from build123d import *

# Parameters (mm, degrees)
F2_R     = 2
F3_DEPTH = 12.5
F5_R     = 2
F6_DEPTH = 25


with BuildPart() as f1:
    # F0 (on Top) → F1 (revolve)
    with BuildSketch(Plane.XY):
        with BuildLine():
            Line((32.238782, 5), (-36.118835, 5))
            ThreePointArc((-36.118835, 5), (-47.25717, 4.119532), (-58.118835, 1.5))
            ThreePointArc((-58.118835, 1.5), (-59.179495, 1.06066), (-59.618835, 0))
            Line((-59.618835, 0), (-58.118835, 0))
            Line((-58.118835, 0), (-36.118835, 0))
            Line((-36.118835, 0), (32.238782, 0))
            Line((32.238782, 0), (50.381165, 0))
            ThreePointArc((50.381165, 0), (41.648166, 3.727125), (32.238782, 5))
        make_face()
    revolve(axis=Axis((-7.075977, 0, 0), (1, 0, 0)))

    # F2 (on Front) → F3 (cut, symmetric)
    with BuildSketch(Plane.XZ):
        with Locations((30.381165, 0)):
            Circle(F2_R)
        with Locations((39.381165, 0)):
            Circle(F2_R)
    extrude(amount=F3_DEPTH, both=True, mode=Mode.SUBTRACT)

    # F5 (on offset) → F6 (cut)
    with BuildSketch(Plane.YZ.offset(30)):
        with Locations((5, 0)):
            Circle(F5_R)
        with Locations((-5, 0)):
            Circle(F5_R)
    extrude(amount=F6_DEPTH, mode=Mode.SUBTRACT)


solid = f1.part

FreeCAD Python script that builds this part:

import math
import FreeCAD as App
import Part
import Sketcher

V = App.Vector
Q = App.Units.Quantity

doc = App.newDocument("Part")
body = doc.addObject("PartDesign::Body", "Body")

# Sketch on XY plane
sketch1 = body.newObject("Sketcher::SketchObject", "Sketch")
sketch1.AttachmentSupport = (doc.getObject("XY_Plane"), [""])
sketch1.MapMode = "FlatFace"
sketch1.addGeometry(Part.LineSegment(V(32.238782, 5, 0), V(-36.118835, 5, 0)), False)
sketch1.addGeometry(Part.ArcOfCircle(Part.Circle(V(-36.11883, -65.892887, 0), V(0, 0, 1), 70.892887), math.radians(90.000004), math.radians(108.078962)), False)
sketch1.addGeometry(Part.ArcOfCircle(Part.Circle(V(-58.118834, -0.000001, 0), V(0, 0, 1), 1.500001), math.radians(90.000022), math.radians(179.999978)), False)
sketch1.addGeometry(Part.LineSegment(V(-59.618835, 0, 0), V(50.381165, 0, 0)), False)
sketch1.addGeometry(Part.ArcOfCircle(Part.Circle(V(32.23878, -30.414612, 0), V(0, 0, 1), 35.414612), math.radians(59.183828), math.radians(89.999997)), False)
sketch1.addConstraint(Sketcher.Constraint("Tangent", 0, 2, 1, 1))
sketch1.addConstraint(Sketcher.Constraint("Coincident", 1, 2, 2, 1))
sketch1.addConstraint(Sketcher.Constraint("Coincident", 2, 2, 3, 1))
sketch1.addConstraint(Sketcher.Constraint("Coincident", 3, 2, 4, 1))
sketch1.addConstraint(Sketcher.Constraint("Tangent", 4, 2, 0, 1))
sketch1.addConstraint(Sketcher.Constraint("Horizontal", 0))
sketch1.addConstraint(Sketcher.Constraint("Horizontal", 3))
sketch1.addConstraint(Sketcher.Constraint("PointOnObject", 2, 3, -1))
sketch1.addConstraint(Sketcher.Constraint("PointOnObject", 2, 2, -1))
sketch1.addConstraint(Sketcher.Constraint("Vertical", 2, 3, 1, 2))
sketch1.addConstraint(Sketcher.Constraint("Radius", 2, Q("1.500001 mm")))
sketch1.addConstraint(Sketcher.Constraint("DistanceX", 3, 1, 3, 2, Q("110 mm")))
sketch1.addConstraint(Sketcher.Constraint("DistanceY", -1, 1, 0, 2, Q("5 mm")))
sketch1.addConstraint(Sketcher.Constraint("DistanceX", 2, 3, 0, 2, Q("21.999999 mm")))
sketch1.addConstraint(Sketcher.Constraint("Radius", 4, Q("35.414612 mm")))
sketch1.addConstraint(Sketcher.Constraint("DistanceX", 1, 3, -1, 1, Q("36.11883 mm")))
revolution = body.newObject("PartDesign::Revolution", "Revolution")
revolution.Profile = sketch1
revolution.ReferenceAxis = (sketch1, ["H_Axis"])
revolution.Angle = 360

# Sketch on XZ plane
sketch2 = body.newObject("Sketcher::SketchObject", "Sketch001")
sketch2.AttachmentSupport = (doc.getObject("XZ_Plane"), [""])
sketch2.MapMode = "FlatFace"
sketch2.addGeometry(Part.Circle(V(30.381165, 0, 0), V(0, 0, 1), 2), False)
sketch2.addGeometry(Part.Circle(V(39.381165, 0, 0), V(0, 0, 1), 2), False)
sketch2.addConstraint(Sketcher.Constraint("Equal", 0, 1))
sketch2.addConstraint(Sketcher.Constraint("PointOnObject", 0, 3, -1))
sketch2.addConstraint(Sketcher.Constraint("PointOnObject", 1, 3, -1))
sketch2.addConstraint(Sketcher.Constraint("Diameter", 0, Q("4 mm")))
sketch2.addConstraint(Sketcher.Constraint("DistanceX", 0, 3, 1, 3, Q("9 mm")))
sketch2.addConstraint(Sketcher.Constraint("DistanceX", -1, 1, 0, 3, Q("30.381165 mm")))
pocket1 = body.newObject("PartDesign::Pocket", "Pocket")
pocket1.Profile = sketch2
pocket1.Length = 25
pocket1.Midplane = True

# Sketch on YZ plane
sketch3 = body.newObject("Sketcher::SketchObject", "Sketch002")
sketch3.AttachmentSupport = (doc.getObject("YZ_Plane"), [""])
sketch3.MapMode = "FlatFace"
sketch3.AttachmentOffset = App.Placement(V(0, 0, 30), App.Rotation())
sketch3.addGeometry(Part.Circle(V(5, 0, 0), V(0, 0, 1), 2), False)
sketch3.addGeometry(Part.Circle(V(-5, 0, 0), V(0, 0, 1), 2), False)
sketch3.addConstraint(Sketcher.Constraint("Equal", 0, 1))
sketch3.addConstraint(Sketcher.Constraint("Symmetric", 0, 3, 1, 3, -1, 1))
sketch3.addConstraint(Sketcher.Constraint("PointOnObject", 0, 3, -1))
sketch3.addConstraint(Sketcher.Constraint("Diameter", 0, Q("4 mm")))
sketch3.addConstraint(Sketcher.Constraint("DistanceX", -1, 1, 0, 3, Q("5 mm")))
pocket2 = body.newObject("PartDesign::Pocket", "Pocket001")
pocket2.Profile = sketch3
pocket2.Length = 25
pocket2.Reversed = True

doc.recompute()
